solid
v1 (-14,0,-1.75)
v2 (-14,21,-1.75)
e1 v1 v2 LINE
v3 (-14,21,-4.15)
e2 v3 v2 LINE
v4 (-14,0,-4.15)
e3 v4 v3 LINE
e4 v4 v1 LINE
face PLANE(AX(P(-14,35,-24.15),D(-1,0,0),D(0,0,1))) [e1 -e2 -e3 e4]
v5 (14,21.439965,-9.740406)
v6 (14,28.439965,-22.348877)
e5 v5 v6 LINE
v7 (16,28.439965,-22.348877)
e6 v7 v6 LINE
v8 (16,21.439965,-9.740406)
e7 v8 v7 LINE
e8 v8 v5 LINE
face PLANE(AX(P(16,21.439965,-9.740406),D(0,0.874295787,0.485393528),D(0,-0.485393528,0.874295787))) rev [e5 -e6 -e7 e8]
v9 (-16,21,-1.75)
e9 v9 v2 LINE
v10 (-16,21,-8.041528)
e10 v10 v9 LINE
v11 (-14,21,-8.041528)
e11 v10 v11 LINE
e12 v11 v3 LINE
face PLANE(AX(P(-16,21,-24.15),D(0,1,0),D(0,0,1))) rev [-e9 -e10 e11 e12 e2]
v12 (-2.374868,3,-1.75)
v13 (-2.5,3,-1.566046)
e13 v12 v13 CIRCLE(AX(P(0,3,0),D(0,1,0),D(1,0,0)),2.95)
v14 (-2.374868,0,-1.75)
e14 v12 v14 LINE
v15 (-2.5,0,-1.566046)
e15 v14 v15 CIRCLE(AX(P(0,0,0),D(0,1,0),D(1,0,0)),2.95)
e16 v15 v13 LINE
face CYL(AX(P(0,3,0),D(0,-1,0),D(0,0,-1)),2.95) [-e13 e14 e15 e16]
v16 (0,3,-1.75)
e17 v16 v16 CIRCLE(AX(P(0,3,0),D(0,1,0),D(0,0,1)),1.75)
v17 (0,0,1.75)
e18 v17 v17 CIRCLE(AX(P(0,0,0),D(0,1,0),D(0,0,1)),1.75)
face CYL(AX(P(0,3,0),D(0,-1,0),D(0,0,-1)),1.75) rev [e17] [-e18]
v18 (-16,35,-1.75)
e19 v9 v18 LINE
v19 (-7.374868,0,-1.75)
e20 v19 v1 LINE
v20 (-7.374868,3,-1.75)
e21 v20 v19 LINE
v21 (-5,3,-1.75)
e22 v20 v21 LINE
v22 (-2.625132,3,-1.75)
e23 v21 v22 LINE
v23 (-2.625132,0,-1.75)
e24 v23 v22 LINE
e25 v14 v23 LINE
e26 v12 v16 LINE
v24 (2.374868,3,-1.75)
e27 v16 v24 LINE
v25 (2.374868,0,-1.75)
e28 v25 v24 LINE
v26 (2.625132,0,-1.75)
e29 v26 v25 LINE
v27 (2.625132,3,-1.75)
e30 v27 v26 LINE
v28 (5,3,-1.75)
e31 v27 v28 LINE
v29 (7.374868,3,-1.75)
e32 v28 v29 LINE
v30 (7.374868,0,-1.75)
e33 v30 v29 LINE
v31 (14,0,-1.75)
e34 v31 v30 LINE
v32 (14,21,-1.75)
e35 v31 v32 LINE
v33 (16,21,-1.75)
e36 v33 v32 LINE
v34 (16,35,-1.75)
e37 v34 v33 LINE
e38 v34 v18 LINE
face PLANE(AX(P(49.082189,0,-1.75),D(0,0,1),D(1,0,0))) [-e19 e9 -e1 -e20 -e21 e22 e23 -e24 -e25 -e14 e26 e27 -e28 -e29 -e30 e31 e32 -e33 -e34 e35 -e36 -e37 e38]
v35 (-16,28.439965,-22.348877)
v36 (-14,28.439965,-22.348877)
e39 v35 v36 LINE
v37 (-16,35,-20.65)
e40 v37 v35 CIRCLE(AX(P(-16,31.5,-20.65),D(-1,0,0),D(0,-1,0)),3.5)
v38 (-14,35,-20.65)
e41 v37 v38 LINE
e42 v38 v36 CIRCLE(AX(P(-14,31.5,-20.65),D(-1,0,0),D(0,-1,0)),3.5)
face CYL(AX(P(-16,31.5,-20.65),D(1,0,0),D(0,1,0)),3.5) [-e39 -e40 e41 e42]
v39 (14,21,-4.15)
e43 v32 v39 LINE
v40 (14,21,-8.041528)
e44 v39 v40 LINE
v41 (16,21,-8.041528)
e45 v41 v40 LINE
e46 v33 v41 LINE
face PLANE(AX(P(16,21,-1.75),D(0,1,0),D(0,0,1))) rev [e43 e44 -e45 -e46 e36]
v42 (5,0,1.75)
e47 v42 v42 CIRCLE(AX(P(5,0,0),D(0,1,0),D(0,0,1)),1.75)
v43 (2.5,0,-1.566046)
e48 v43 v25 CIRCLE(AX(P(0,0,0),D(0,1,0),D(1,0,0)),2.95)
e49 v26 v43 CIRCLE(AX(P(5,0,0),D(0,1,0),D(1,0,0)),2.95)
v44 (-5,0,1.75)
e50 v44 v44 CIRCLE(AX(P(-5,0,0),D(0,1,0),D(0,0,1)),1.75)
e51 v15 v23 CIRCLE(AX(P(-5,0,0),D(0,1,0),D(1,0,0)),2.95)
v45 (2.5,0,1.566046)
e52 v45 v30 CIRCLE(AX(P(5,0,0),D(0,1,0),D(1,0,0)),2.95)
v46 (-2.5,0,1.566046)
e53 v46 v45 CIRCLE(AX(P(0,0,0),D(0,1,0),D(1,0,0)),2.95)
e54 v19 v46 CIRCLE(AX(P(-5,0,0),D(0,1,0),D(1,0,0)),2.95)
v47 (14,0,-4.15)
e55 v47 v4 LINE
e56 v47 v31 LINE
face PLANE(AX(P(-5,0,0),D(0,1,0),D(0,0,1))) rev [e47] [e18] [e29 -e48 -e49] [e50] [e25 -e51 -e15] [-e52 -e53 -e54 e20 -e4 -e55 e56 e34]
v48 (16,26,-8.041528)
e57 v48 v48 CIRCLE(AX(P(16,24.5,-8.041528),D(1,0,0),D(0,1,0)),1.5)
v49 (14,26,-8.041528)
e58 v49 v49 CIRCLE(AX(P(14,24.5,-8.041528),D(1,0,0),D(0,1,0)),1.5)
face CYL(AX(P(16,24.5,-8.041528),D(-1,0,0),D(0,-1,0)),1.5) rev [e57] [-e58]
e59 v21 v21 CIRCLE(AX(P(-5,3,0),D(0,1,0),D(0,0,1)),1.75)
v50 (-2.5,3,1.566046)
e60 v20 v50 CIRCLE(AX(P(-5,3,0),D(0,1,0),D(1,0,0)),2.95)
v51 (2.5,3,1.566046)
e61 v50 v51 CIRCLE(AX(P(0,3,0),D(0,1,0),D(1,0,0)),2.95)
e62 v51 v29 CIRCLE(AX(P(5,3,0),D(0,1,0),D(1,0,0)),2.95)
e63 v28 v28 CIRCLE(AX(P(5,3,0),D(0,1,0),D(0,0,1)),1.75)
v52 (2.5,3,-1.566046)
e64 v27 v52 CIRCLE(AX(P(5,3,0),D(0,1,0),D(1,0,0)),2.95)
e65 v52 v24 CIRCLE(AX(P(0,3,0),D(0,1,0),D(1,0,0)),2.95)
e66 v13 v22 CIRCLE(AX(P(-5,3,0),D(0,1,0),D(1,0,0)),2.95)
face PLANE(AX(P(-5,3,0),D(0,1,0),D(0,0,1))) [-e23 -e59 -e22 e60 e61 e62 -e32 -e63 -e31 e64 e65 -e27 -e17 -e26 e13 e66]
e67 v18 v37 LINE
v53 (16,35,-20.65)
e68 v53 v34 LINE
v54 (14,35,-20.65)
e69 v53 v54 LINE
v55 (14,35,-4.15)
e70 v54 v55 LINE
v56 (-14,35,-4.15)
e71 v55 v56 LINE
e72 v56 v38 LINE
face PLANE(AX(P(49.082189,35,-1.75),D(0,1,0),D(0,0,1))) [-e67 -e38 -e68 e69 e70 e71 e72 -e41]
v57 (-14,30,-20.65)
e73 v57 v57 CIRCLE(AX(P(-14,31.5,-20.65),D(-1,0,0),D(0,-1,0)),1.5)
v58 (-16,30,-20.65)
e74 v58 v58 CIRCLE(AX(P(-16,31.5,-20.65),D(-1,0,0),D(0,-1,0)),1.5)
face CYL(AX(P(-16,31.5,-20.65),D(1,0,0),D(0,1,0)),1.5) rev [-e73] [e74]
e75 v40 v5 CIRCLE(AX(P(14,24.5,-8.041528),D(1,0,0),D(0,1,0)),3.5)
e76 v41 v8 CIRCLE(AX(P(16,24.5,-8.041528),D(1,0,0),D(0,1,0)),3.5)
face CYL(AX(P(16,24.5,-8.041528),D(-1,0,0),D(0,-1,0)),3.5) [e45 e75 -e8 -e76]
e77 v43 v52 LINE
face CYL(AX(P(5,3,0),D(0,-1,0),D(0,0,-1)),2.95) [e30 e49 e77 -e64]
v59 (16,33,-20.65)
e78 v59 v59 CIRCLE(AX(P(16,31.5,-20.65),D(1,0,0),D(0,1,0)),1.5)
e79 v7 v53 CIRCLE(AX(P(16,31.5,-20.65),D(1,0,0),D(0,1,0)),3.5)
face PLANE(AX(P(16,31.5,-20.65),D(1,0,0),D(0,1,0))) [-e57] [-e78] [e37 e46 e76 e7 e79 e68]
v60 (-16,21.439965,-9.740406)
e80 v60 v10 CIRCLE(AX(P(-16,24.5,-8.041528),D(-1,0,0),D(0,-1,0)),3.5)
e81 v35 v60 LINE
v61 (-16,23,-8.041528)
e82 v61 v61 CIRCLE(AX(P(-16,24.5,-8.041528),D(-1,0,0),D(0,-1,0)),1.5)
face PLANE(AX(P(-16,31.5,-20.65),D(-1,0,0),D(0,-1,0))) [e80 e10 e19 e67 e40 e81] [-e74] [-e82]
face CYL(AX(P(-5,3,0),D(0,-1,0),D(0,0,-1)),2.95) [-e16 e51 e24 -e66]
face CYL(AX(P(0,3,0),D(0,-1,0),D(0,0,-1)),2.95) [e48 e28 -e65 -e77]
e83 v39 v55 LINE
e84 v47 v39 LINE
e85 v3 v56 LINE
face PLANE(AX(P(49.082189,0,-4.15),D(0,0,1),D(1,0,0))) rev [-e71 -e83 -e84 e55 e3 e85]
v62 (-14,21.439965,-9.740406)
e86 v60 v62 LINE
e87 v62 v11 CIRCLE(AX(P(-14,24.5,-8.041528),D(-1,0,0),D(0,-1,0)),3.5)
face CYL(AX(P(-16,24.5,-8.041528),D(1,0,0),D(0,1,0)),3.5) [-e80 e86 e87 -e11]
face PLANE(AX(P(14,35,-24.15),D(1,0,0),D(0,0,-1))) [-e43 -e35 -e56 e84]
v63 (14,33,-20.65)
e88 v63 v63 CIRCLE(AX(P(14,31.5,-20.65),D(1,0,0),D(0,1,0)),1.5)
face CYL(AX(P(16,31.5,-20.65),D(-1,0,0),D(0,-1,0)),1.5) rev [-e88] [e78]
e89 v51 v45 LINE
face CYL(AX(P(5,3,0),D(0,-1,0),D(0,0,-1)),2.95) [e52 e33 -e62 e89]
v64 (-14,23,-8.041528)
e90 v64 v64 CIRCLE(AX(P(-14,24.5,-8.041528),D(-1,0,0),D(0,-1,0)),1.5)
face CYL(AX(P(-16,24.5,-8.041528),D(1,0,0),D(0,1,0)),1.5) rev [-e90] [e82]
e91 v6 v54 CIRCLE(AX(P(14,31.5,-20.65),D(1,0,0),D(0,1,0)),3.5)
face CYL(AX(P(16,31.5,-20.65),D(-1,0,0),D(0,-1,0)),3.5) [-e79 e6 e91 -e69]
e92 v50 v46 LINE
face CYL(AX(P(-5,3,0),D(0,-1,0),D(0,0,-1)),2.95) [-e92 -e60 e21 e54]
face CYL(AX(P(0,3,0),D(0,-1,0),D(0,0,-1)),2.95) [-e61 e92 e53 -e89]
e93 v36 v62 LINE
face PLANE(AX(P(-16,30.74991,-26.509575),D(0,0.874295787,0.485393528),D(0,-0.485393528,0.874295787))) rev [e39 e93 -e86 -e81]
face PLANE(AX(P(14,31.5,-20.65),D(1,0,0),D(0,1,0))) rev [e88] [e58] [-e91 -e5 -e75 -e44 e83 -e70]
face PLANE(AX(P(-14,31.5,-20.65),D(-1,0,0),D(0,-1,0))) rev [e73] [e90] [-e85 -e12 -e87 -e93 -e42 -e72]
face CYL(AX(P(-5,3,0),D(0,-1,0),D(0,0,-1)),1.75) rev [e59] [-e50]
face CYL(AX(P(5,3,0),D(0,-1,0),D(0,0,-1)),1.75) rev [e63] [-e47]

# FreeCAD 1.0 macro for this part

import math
import FreeCAD as App
import Part
import Sketcher

V = App.Vector
Q = App.Units.Quantity

doc = App.newDocument("Part")
params = doc.addObject("Spreadsheet::Sheet", "Params")
for row, (alias, value) in enumerate([
    ("sketch1_diameter", "3.5 mm"),
    ("sketch1_radius", "2.95 mm"),
    ("pad1_length", "3 mm"),
    ("sketch2_width", "35 mm"),
    ("sketch2_height", "2.4 mm"),
    ("pad2_length", "14 mm"),
    ("pad2_length2", "14 mm"),
    ("sketch3_diameter", "3 mm"),
    ("sketch3_radius", "3.5 mm"),
    ("sketch3_width", "14 mm"),
    ("sketch3_height", "18.9 mm"),
    ("pad3_length", "2 mm"),
    ("sketch4_diameter", "3 mm"),
    ("sketch4_radius", "3.5 mm"),
    ("sketch4_width", "14 mm"),
    ("sketch4_height", "18.9 mm"),
    ("pad4_length", "2 mm"),
], start=1):
    params.set(f"A{row}", alias)
    params.set(f"B{row}", "=" + value)
    params.setAlias(f"B{row}", alias)

body = doc.addObject("PartDesign::Body", "Body")

sketch1 = body.newObject("Sketcher::SketchObject", "Sketch")
sketch1.AttachmentSupport = (doc.getObject("XZ_Plane"), [""])
sketch1.MapMode = "FlatFace"
sketch1.addGeometry([
    Part.ArcOfCircle(Part.Circle(V(5, 0, 0), V(0, 0, 1), 3), math.radians(-148), math.radians(148)),
    Part.ArcOfCircle(Part.Circle(V(0, 0, 0), V(0, 0, 1), 3), math.radians(-148), math.radians(-32)),
    Part.ArcOfCircle(Part.Circle(V(-5, 0, 0), V(0, 0, 1), 3), math.radians(32), math.radians(328)),
    Part.ArcOfCircle(Part.Circle(V(0, 0, 0), V(0, 0, 1), 3), math.radians(32), math.radians(148)),
    Part.Circle(V(5, 0, 0), V(0, 0, 1), 1.8),
    Part.Circle(V(0, 0, 0), V(0, 0, 1), 1.8),
    Part.Circle(V(-5, 0, 0), V(0, 0, 1), 1.8),
], False)
sketch1.addConstraint([
    Sketcher.Constraint("Coincident", 0, 1, 1, 2),
    Sketcher.Constraint("Coincident", 1, 1, 2, 2),
    Sketcher.Constraint("Coincident", 2, 1, 3, 2),
    Sketcher.Constraint("Coincident", 3, 1, 0, 2),
    Sketcher.Constraint("Coincident", 1, 3, -1, 1),
    Sketcher.Constraint("Coincident", 3, 3, -1, 1),
    Sketcher.Constraint("Coincident", 5, 3, -1, 1),
    Sketcher.Constraint("Coincident", 4, 3, 0, 3),
    Sketcher.Constraint("Coincident", 6, 3, 2, 3),
    Sketcher.Constraint("Equal", 0, 1),
    Sketcher.Constraint("Equal", 1, 2),
    Sketcher.Constraint("Equal", 2, 3),
    Sketcher.Constraint("Equal", 4, 5),
    Sketcher.Constraint("Equal", 5, 6),
    Sketcher.Constraint("Symmetric", 0, 3, 2, 3, -1, 1),
    Sketcher.Constraint("PointOnObject", 0, 3, -1),
    Sketcher.Constraint("Diameter", 4, Q("3.5 mm")),
    Sketcher.Constraint("Radius", 0, Q("2.95 mm")),
    Sketcher.Constraint("DistanceX", -1, 1, 0, 3, Q("5 mm")),
])
sketch1.setExpression("Constraints[16]", "Params.sketch1_diameter")
sketch1.setExpression("Constraints[17]", "Params.sketch1_radius")
pad1 = body.newObject("PartDesign::Pad", "Pad")
pad1.Profile = sketch1
pad1.setExpression("Length", "Params.pad1_length")
pad1.Reversed = True

sketch2 = body.newObject("Sketcher::SketchObject", "Sketch001")
sketch2.AttachmentSupport = (doc.getObject("YZ_Plane"), [""])
sketch2.MapMode = "FlatFace"
sketch2.addGeometry([
    Part.LineSegment(V(35, -1.8, 0), V(0, -1.8, 0)),
    Part.LineSegment(V(0, -1.8, 0), V(0, -4.2, 0)),
    Part.LineSegment(V(0, -4.2, 0), V(35, -4.2, 0)),
    Part.LineSegment(V(35, -4.2, 0), V(35, -1.8, 0)),
], False)
sketch2.addConstraint([
    Sketcher.Constraint("Coincident", 0, 2, 1, 1),
    Sketcher.Constraint("Coincident", 1, 2, 2, 1),
    Sketcher.Constraint("Coincident", 2, 2, 3, 1),
    Sketcher.Constraint("Coincident", 3, 2, 0, 1),
    Sketcher.Constraint("Horizontal", 0),
    Sketcher.Constraint("Vertical", 1),
    Sketcher.Constraint("Horizontal", 2),
    Sketcher.Constraint("Vertical", 3),
    Sketcher.Constraint("PointOnObject", 0, 2, -2),
    Sketcher.Constraint("DistanceX", 0, 2, 0, 1, Q("35 mm")),
    Sketcher.Constraint("DistanceY", 1, 2, 1, 1, Q("2.4 mm")),
    Sketcher.Constraint("DistanceY", 0, 2, -1, 1, Q("1.75 mm")),
])
sketch2.setExpression("Constraints[9]", "Params.sketch2_width")
sketch2.setExpression("Constraints[10]", "Params.sketch2_height")
pad2 = body.newObject("PartDesign::Pad", "Pad001")
pad2.Profile = sketch2
pad2.Type = "TwoLengths"
pad2.setExpression("Length", "Params.pad2_length")
pad2.setExpression("Length2", "Params.pad2_length2")

sketch3 = body.newObject("Sketcher::SketchObject", "Sketch002")
sketch3.AttachmentSupport = (doc.getObject("YZ_Plane"), [""])
sketch3.MapMode = "FlatFace"
sketch3.AttachmentOffset = App.Placement(V(0, 0, 14), App.Rotation())
sketch3.addGeometry([
    Part.LineSegment(V(35, -20.6, 0), V(35, -1.8, 0)),
    Part.LineSegment(V(35, -1.8, 0), V(21, -1.8, 0)),
    Part.LineSegment(V(21, -1.8, 0), V(21, -8, 0)),
    Part.ArcOfCircle(Part.Circle(V(24.5, -8, 0), V(0, 0, 1), 3.5), math.radians(-180), math.radians(-151)),
    Part.LineSegment(V(21.4, -9.7, 0), V(28.4, -22.3, 0)),
    Part.ArcOfCircle(Part.Circle(V(31.5, -20.6, 0), V(0, 0, 1), 3.5), math.radians(-151), math.radians(0)),
    Part.Circle(V(24.5, -8, 0), V(0, 0, 1), 1.5),
    Part.Circle(V(31.5, -20.6, 0), V(0, 0, 1), 1.5),
], False)
sketch3.addConstraint([
    Sketcher.Constraint("Coincident", 0, 2, 1, 1),
    Sketcher.Constraint("Coincident", 1, 2, 2, 1),
    Sketcher.Constraint("Tangent", 2, 2, 3, 1),
    Sketcher.Constraint("Tangent", 3, 2, 4, 1),
    Sketcher.Constraint("Tangent", 4, 2, 5, 1),
    Sketcher.Constraint("Tangent", 5, 2, 0, 1),
    Sketcher.Constraint("Vertical", 0),
    Sketcher.Constraint("Horizontal", 1),
    Sketcher.Constraint("Vertical", 2),
    Sketcher.Constraint("Coincident", 6, 3, 3, 3),
    Sketcher.Constraint("Coincident", 7, 3, 5, 3),
    Sketcher.Constraint("Equal", 3, 5),
    Sketcher.Constraint("Equal", 6, 7),
    Sketcher.Constraint("Diameter", 6, Q("3 mm")),
    Sketcher.Constraint("Radius", 3, Q("3.5 mm")),
    Sketcher.Constraint("DistanceX", 1, 2, 1, 1, Q("14 mm")),
    Sketcher.Constraint("DistanceY", 0, 1, 0, 2, Q("18.9 mm")),
    Sketcher.Constraint("DistanceX", -1, 1, 0, 2, Q("35 mm")),
    Sketcher.Constraint("DistanceY", 5, 3, -1, 1, Q("20.65 mm")),
    Sketcher.Constraint("DistanceY", 2, 2, 2, 1, Q("6.291528 mm")),
])
sketch3.setExpression("Constraints[13]", "Params.sketch3_diameter")
sketch3.setExpression("Constraints[14]", "Params.sketch3_radius")
sketch3.setExpression("Constraints[15]", "Params.sketch3_width")
sketch3.setExpression("Constraints[16]", "Params.sketch3_height")
pad3 = body.newObject("PartDesign::Pad", "Pad002")
pad3.Profile = sketch3
pad3.setExpression("Length", "Params.pad3_length")

sketch4 = body.newObject("Sketcher::SketchObject", "Sketch003")
sketch4.AttachmentSupport = (doc.getObject("YZ_Plane"), [""])
sketch4.MapMode = "FlatFace"
sketch4.AttachmentOffset = App.Placement(V(0, 0, -16), App.Rotation())
sketch4.addGeometry([
    Part.LineSegment(V(35, -20.6, 0), V(35, -1.8, 0)),
    Part.LineSegment(V(35, -1.8, 0), V(21, -1.8, 0)),
    Part.LineSegment(V(21, -1.8, 0), V(21, -8, 0)),
    Part.ArcOfCircle(Part.Circle(V(24.5, -8, 0), V(0, 0, 1), 3.5), math.radians(-180), math.radians(-151)),
    Part.LineSegment(V(21.4, -9.7, 0), V(28.4, -22.3, 0)),
    Part.ArcOfCircle(Part.Circle(V(31.5, -20.6, 0), V(0, 0, 1), 3.5), math.radians(-151), math.radians(0)),
    Part.Circle(V(24.5, -8, 0), V(0, 0, 1), 1.5),
    Part.Circle(V(31.5, -20.6, 0), V(0, 0, 1), 1.5),
], False)
sketch4.addConstraint([
    Sketcher.Constraint("Coincident", 0, 2, 1, 1),
    Sketcher.Constraint("Coincident", 1, 2, 2, 1),
    Sketcher.Constraint("Tangent", 2, 2, 3, 1),
    Sketcher.Constraint("Tangent", 3, 2, 4, 1),
    Sketcher.Constraint("Tangent", 4, 2, 5, 1),
    Sketcher.Constraint("Tangent", 5, 2, 0, 1),
    Sketcher.Constraint("Vertical", 0),
    Sketcher.Constraint("Horizontal", 1),
    Sketcher.Constraint("Vertical", 2),
    Sketcher.Constraint("Coincident", 6, 3, 3, 3),
    Sketcher.Constraint("Coincident", 7, 3, 5, 3),
    Sketcher.Constraint("Equal", 3, 5),
    Sketcher.Constraint("Equal", 6, 7),
    Sketcher.Constraint("Diameter", 6, Q("3 mm")),
    Sketcher.Constraint("Radius", 3, Q("3.5 mm")),
    Sketcher.Constraint("DistanceX", 1, 2, 1, 1, Q("14 mm")),
    Sketcher.Constraint("DistanceY", 0, 1, 0, 2, Q("18.9 mm")),
    Sketcher.Constraint("DistanceX", -1, 1, 0, 2, Q("35 mm")),
    Sketcher.Constraint("DistanceY", 5, 3, -1, 1, Q("20.65 mm")),
    Sketcher.Constraint("DistanceY", 2, 2, 2, 1, Q("6.291528 mm")),
])
sketch4.setExpression("Constraints[13]", "Params.sketch4_diameter")
sketch4.setExpression("Constraints[14]", "Params.sketch4_radius")
sketch4.setExpression("Constraints[15]", "Params.sketch4_width")
sketch4.setExpression("Constraints[16]", "Params.sketch4_height")
pad4 = body.newObject("PartDesign::Pad", "Pad003")
pad4.Profile = sketch4
pad4.setExpression("Length", "Params.pad4_length")

doc.recompute()
